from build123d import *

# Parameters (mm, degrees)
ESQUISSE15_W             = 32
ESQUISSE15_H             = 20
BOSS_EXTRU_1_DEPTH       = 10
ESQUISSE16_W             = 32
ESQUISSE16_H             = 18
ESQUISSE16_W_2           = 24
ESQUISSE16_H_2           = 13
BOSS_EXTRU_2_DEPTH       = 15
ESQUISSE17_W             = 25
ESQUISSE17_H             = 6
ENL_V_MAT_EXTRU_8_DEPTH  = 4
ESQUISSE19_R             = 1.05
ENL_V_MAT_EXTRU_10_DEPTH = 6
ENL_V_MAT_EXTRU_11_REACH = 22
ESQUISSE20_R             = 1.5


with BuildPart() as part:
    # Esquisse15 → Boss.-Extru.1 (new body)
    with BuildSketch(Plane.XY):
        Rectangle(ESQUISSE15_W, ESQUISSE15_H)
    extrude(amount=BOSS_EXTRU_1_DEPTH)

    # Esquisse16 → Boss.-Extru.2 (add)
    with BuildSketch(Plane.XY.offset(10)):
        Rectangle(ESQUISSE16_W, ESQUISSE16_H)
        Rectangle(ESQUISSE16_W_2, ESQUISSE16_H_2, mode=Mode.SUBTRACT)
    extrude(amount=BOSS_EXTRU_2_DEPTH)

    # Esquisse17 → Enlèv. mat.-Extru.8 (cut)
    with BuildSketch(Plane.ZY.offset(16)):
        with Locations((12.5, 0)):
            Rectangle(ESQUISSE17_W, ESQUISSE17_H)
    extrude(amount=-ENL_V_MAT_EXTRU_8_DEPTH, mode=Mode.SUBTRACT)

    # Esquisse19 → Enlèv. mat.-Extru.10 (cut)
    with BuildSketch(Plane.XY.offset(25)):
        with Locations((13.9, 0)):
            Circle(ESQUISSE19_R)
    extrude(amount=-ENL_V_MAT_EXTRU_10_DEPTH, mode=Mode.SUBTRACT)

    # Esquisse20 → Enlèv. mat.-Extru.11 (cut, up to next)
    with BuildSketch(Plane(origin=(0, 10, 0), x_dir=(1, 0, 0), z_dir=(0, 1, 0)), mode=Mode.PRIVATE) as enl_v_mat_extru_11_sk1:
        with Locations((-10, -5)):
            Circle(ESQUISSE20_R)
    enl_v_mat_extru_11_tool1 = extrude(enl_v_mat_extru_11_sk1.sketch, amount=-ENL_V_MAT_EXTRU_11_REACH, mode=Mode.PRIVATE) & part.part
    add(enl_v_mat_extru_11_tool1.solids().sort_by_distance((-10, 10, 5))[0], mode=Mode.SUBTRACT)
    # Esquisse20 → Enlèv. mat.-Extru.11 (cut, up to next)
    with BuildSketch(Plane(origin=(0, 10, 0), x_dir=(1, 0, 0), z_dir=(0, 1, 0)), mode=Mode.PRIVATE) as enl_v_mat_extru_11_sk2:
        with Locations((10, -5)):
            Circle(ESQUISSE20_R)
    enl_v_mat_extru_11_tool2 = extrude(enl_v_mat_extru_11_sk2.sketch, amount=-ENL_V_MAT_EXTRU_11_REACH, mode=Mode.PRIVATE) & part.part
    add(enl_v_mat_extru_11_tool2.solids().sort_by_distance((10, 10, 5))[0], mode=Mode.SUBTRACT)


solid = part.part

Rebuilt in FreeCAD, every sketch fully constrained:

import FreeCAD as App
import Part
import Sketcher


def add_polygon(sketch, points):
    """Adds a closed chain of lines whose ends are joined by coincident constraints."""
    first, n = sketch.GeometryCount, len(points)
    for a, b in zip(points, points[1:] + points[:1]):
        sketch.addGeometry(Part.LineSegment(App.Vector(*a, 0), App.Vector(*b, 0)), False)
    for i in range(n):
        sketch.addConstraint(Sketcher.Constraint("Coincident", first + i, 2, first + (i + 1) % n, 1))

doc = App.newDocument("Part")
body = doc.addObject("PartDesign::Body", "Body")

# Sketch on XY plane
sketch1 = body.newObject("Sketcher::SketchObject", "Sketch")
sketch1.AttachmentSupport = (doc.getObject("XY_Plane"), [""])
sketch1.MapMode = "FlatFace"
add_polygon(sketch1, [(-16, 10), (-16, -10), (16, -10), (16, 10)])  # lines 0-3
sketch1.addConstraint([
    Sketcher.Constraint("Vertical", 0),
    Sketcher.Constraint("Horizontal", 1),
    Sketcher.Constraint("Vertical", 2),
    Sketcher.Constraint("Horizontal", 3),
    Sketcher.Constraint("Symmetric", 0, 2, 2, 2, -1, 1),
    Sketcher.Constraint("DistanceX", 1, 1, 1, 2, 32.0),
    Sketcher.Constraint("DistanceY", 0, 2, 0, 1, 20.0),
])
pad1 = body.newObject("PartDesign::Pad", "Pad")
pad1.Profile = sketch1
pad1.Length = 10

# Sketch on XY plane
sketch2 = body.newObject("Sketcher::SketchObject", "Sketch001")
sketch2.AttachmentSupport = (doc.getObject("XY_Plane"), [""])
sketch2.MapMode = "FlatFace"
sketch2.AttachmentOffset = App.Placement(App.Vector(0, 0, 10), App.Rotation())
add_polygon(sketch2, [(-16, 9), (-16, -9), (16, -9), (16, 9)])  # lines 0-3
add_polygon(sketch2, [(12, -6), (-12, -6), (-12, 6), (12, 6)])  # lines 4-7
sketch2.addConstraint([
    Sketcher.Constraint("Vertical", 0),
    Sketcher.Constraint("Horizontal", 1),
    Sketcher.Constraint("Vertical", 2),
    Sketcher.Constraint("Horizontal", 3),
    Sketcher.Constraint("Horizontal", 4),
    Sketcher.Constraint("Vertical", 5),
    Sketcher.Constraint("Horizontal", 6),
    Sketcher.Constraint("Vertical", 7),
    Sketcher.Constraint("Symmetric", 0, 2, 2, 2, -1, 1),
    Sketcher.Constraint("Symmetric", 4, 2, 6, 2, -1, 1),
    Sketcher.Constraint("DistanceX", 1, 1, 1, 2, 32.0),
    Sketcher.Constraint("DistanceX", 4, 2, 4, 1, 24.0),
    Sketcher.Constraint("DistanceY", 0, 2, 0, 1, 18.0),
    Sketcher.Constraint("DistanceY", 5, 1, 5, 2, 13.0),
])
pad2 = body.newObject("PartDesign::Pad", "Pad001")
pad2.Profile = sketch2
pad2.Length = 15

# Sketch on YZ plane
sketch3 = body.newObject("Sketcher::SketchObject", "Sketch002")
sketch3.AttachmentSupport = (doc.getObject("YZ_Plane"), [""])
sketch3.MapMode = "FlatFace"
sketch3.AttachmentOffset = App.Placement(App.Vector(0, 0, -16), App.Rotation())
add_polygon(sketch3, [(3, 0), (-3, 0), (-3, 25), (3, 25)])  # lines 0-3
sketch3.addConstraint([
    Sketcher.Constraint("Horizontal", 0),
    Sketcher.Constraint("Vertical", 1),
    Sketcher.Constraint("Horizontal", 2),
    Sketcher.Constraint("Vertical", 3),
    Sketcher.Constraint("Symmetric", 0, 2, 3, 2, -1, 1),
    Sketcher.Constraint("DistanceX", 0, 2, 0, 1, 6.0),
    Sketcher.Constraint("DistanceY", 1, 1, 1, 2, 25.0),
])
pocket1 = body.newObject("PartDesign::Pocket", "Pocket")
pocket1.Profile = sketch3
pocket1.Length = 4
pocket1.Reversed = True

# Sketch on XY plane
sketch4 = body.newObject("Sketcher::SketchObject", "Sketch003")
sketch4.AttachmentSupport = (doc.getObject("XY_Plane"), [""])
sketch4.MapMode = "FlatFace"
sketch4.AttachmentOffset = App.Placement(App.Vector(0, 0, 25), App.Rotation())
sketch4.addGeometry(Part.Circle(App.Vector(13.9, 0, 0), App.Vector(0, 0, 1), 1.1), False)
sketch4.addConstraint([
    Sketcher.Constraint("PointOnObject", 0, 3, -1),
    Sketcher.Constraint("Diameter", 0, 2.1),
    Sketcher.Constraint("DistanceX", -1, 1, 0, 3, 13.9),
])
pocket2 = body.newObject("PartDesign::Pocket", "Pocket001")
pocket2.Profile = sketch4
pocket2.Length = 6

# Sketch on XZ plane
sketch5 = body.newObject("Sketcher::SketchObject", "Sketch004")
sketch5.AttachmentSupport = (doc.getObject("XZ_Plane"), [""])
sketch5.MapMode = "FlatFace"
sketch5.AttachmentOffset = App.Placement(App.Vector(0, 0, -10), App.Rotation())
sketch5.addGeometry(Part.Circle(App.Vector(-10, 5, 0), App.Vector(0, 0, 1), 1.5), False)
sketch5.addConstraint([
    Sketcher.Constraint("Diameter", 0, 3.0),
    Sketcher.Constraint("DistanceX", 0, 3, -1, 1, 10.0),
    Sketcher.Constraint("DistanceY", -1, 1, 0, 3, 5.0),
])
pocket3 = body.newObject("PartDesign::Pocket", "Pocket002")
pocket3.Profile = sketch5
pocket3.Type = "UpToFirst"
pocket3.Reversed = True

# Sketch on XZ plane
sketch6 = body.newObject("Sketcher::SketchObject", "Sketch005")
sketch6.AttachmentSupport = (doc.getObject("XZ_Plane"), [""])
sketch6.MapMode = "FlatFace"
sketch6.AttachmentOffset = App.Placement(App.Vector(0, 0, -10), App.Rotation())
sketch6.addGeometry(Part.Circle(App.Vector(10, 5, 0), App.Vector(0, 0, 1), 1.5), False)
sketch6.addConstraint([
    Sketcher.Constraint("Diameter", 0, 3.0),
    Sketcher.Constraint("DistanceX", -1, 1, 0, 3, 10.0),
    Sketcher.Constraint("DistanceY", -1, 1, 0, 3, 5.0),
])
pocket4 = body.newObject("PartDesign::Pocket", "Pocket003")
pocket4.Profile = sketch6
pocket4.Type = "UpToFirst"
pocket4.Reversed = True

doc.recompute()
